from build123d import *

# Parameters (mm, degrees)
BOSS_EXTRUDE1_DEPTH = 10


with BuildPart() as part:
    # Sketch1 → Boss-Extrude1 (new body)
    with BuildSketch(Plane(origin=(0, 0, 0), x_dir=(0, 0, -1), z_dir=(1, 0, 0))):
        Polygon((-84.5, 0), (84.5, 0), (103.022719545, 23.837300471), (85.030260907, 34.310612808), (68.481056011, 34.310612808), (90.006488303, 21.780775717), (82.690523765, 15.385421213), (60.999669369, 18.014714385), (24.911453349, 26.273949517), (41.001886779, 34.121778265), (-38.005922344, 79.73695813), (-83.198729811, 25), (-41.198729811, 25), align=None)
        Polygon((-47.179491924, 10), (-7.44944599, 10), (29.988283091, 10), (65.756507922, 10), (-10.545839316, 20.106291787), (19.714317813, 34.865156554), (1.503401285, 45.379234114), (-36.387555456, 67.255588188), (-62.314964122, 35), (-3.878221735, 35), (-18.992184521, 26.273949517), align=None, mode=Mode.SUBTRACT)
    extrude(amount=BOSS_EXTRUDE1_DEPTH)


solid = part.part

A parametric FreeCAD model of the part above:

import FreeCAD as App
import Part
import Sketcher
Q = App.Units.Quantity

doc = App.newDocument("Part")
params = doc.addObject("Spreadsheet::Sheet", "Params")
for row, (alias, value) in enumerate([
    ("sketch1_height", "169 mm"),
    ("sketch1_height2", "42 mm"),
    ("sketch1_length", "50 mm"),
    ("pad1_length", "10 mm"),
], start=1):
    params.set(f"A{row}", alias)
    params.set(f"B{row}", "=" + value)
    params.setAlias(f"B{row}", alias)

body = doc.addObject("PartDesign::Body", "Body")

# Sketch on YZ plane
sketch1 = body.newObject("Sketcher::SketchObject", "Sketch")
sketch1.AttachmentSupport = (doc.getObject("YZ_Plane"), [""])
sketch1.MapMode = "FlatFace"
sketch1.addGeometry([
    Part.LineSegment(App.Vector(0, 84, 0), App.Vector(0, -84, 0)),  # 0
    Part.LineSegment(App.Vector(0, -84, 0), App.Vector(24, -103, 0)),  # 1
    Part.LineSegment(App.Vector(24, -103, 0), App.Vector(34, -85, 0)),  # 2
    Part.LineSegment(App.Vector(34, -85, 0), App.Vector(34, -68, 0)),  # 3
    Part.LineSegment(App.Vector(34, -68, 0), App.Vector(22, -90, 0)),  # 4
    Part.LineSegment(App.Vector(22, -90, 0), App.Vector(15, -83, 0)),  # 5
    Part.LineSegment(App.Vector(15, -83, 0), App.Vector(18, -61, 0)),  # 6
    Part.LineSegment(App.Vector(18, -61, 0), App.Vector(26, -25, 0)),  # 7
    Part.LineSegment(App.Vector(26, -25, 0), App.Vector(34, -41, 0)),  # 8
    Part.LineSegment(App.Vector(34, -41, 0), App.Vector(80, 38, 0)),  # 9
    Part.LineSegment(App.Vector(80, 38, 0), App.Vector(25, 83, 0)),  # 10
    Part.LineSegment(App.Vector(25, 83, 0), App.Vector(25, 41, 0)),  # 11
    Part.LineSegment(App.Vector(25, 41, 0), App.Vector(0, 84, 0)),  # 12
    Part.LineSegment(App.Vector(10, -66, 0), App.Vector(10, 47, 0)),  # 13
    Part.LineSegment(App.Vector(10, 47, 0), App.Vector(26, 19, 0)),  # 14
    Part.LineSegment(App.Vector(26, 19, 0), App.Vector(35, 4, 0)),  # 15
    Part.LineSegment(App.Vector(35, 4, 0), App.Vector(35, 62, 0)),  # 16
    Part.LineSegment(App.Vector(35, 62, 0), App.Vector(67, 36, 0)),  # 17
    Part.LineSegment(App.Vector(67, 36, 0), App.Vector(45, -2, 0)),  # 18
    Part.LineSegment(App.Vector(45, -2, 0), App.Vector(35, -20, 0)),  # 19
    Part.LineSegment(App.Vector(35, -20, 0), App.Vector(20, 11, 0)),  # 20
    Part.LineSegment(App.Vector(20, 11, 0), App.Vector(10, -66, 0)),  # 21
], False)
sketch1.addConstraint([
    Sketcher.Constraint("Coincident", 0, 2, 1, 1),
    Sketcher.Constraint("Coincident", 1, 2, 2, 1),
    Sketcher.Constraint("Coincident", 2, 2, 3, 1),
    Sketcher.Constraint("Coincident", 3, 2, 4, 1),
    Sketcher.Constraint("Coincident", 4, 2, 5, 1),
    Sketcher.Constraint("Coincident", 5, 2, 6, 1),
    Sketcher.Constraint("Coincident", 6, 2, 7, 1),
    Sketcher.Constraint("Coincident", 7, 2, 8, 1),
    Sketcher.Constraint("Coincident", 8, 2, 9, 1),
    Sketcher.Constraint("Coincident", 9, 2, 10, 1),
    Sketcher.Constraint("Coincident", 10, 2, 11, 1),
    Sketcher.Constraint("Coincident", 11, 2, 12, 1),
    Sketcher.Constraint("Coincident", 12, 2, 0, 1),
    Sketcher.Constraint("Coincident", 13, 2, 14, 1),
    Sketcher.Constraint("Coincident", 14, 2, 15, 1),
    Sketcher.Constraint("Coincident", 15, 2, 16, 1),
    Sketcher.Constraint("Coincident", 16, 2, 17, 1),
    Sketcher.Constraint("Coincident", 17, 2, 18, 1),
    Sketcher.Constraint("Coincident", 18, 2, 19, 1),
    Sketcher.Constraint("Coincident", 19, 2, 20, 1),
    Sketcher.Constraint("Coincident", 20, 2, 21, 1),
    Sketcher.Constraint("Coincident", 21, 2, 13, 1),
    Sketcher.Constraint("Vertical", 0),
    Sketcher.Constraint("Vertical", 3),
    Sketcher.Constraint("Vertical", 11),
    Sketcher.Constraint("Vertical", 13),
    Sketcher.Constraint("Vertical", 16),
    Sketcher.Constraint("Symmetric", 0, 2, 12, 2, -1, 1),
    Sketcher.Constraint("Parallel", 2, 4),
    Sketcher.Constraint("Parallel", 12, 14),
    Sketcher.Constraint("Parallel", 14, 15),
    Sketcher.Constraint("Parallel", 9, 18),
    Sketcher.Constraint("Parallel", 18, 19),
    Sketcher.Constraint("Parallel", 8, 20),
    Sketcher.Constraint("Vertical", 7, 2, 14, 2),
    Sketcher.Constraint("DistanceY", 0, 2, 0, 1, 169.0),
    Sketcher.Constraint("DistanceY", 11, 2, 11, 1, 42.0),
    Sketcher.Constraint("Angle", 8, Q("-64 deg")),
    Sketcher.Constraint("Angle", 9, Q("60 deg")),
    Sketcher.Constraint("Angle", 12, Q("120 deg")),
    Sketcher.Constraint("Distance", 12, 50.0),
    Sketcher.Constraint("DistanceX", -1, 1, 13, 2, 10.0),
    Sketcher.Constraint("DistanceX", -1, 1, 15, 2, 35.0),
    Sketcher.Constraint("DistanceY", 13, 1, 13, 2, 112.936),
    Sketcher.Constraint("Distance", 14, 32.547899),
    Sketcher.Constraint("DistanceX", -1, 1, 1, 2, 23.8373),
    Sketcher.Constraint("DistanceY", 18, 2, -1, 1, 1.503401),
    Sketcher.Constraint("DistanceX", 6, 2, 3, 2, 16.295898),
    Sketcher.Constraint("DistanceY", 6, 2, 10, 2, 144.198399),
    Sketcher.Constraint("Distance", 1, 30.187879),
    Sketcher.Constraint("Distance", 6, 21.84963),
    Sketcher.Constraint("Distance", 7, 37.021268),
    Sketcher.Constraint("Distance", 9, 91.23036),
    Sketcher.Constraint("Distance", 18, 43.752708),
    Sketcher.Constraint("Distance", 20, 33.66751),
    Sketcher.Constraint("Distance", 21, 76.96873),
    Sketcher.Constraint("DistanceY", 3, 1, 3, 2, 16.549205),
    Sketcher.Constraint("DistanceY", 16, 1, 16, 2, 58.436742),
    Sketcher.Constraint("DistanceY", 2, 2, -1, 1, 85.030261),
    Sketcher.Constraint("DistanceY", 4, 2, -1, 1, 90.006488),
    Sketcher.Constraint("DistanceX", -1, 1, 5, 2, 15.385421),
    Sketcher.Constraint("DistanceX", -1, 1, 8, 2, 34.121778),
    Sketcher.Constraint("DistanceY", -1, 1, 13, 2, 47.179492),
    Sketcher.Constraint("DistanceX", -1, 1, 17, 2, 67.255588),
    Sketcher.Constraint("DistanceX", 5, 2, 2, 2, 18.925192),
])
sketch1.setExpression("Constraints[35]", "Params.sketch1_height")
sketch1.setExpression("Constraints[36]", "Params.sketch1_height2")
sketch1.setExpression("Constraints[40]", "Params.sketch1_length")
pad1 = body.newObject("PartDesign::Pad", "Pad")
pad1.Profile = sketch1
pad1.setExpression("Length", "Params.pad1_length")

doc.recompute()
